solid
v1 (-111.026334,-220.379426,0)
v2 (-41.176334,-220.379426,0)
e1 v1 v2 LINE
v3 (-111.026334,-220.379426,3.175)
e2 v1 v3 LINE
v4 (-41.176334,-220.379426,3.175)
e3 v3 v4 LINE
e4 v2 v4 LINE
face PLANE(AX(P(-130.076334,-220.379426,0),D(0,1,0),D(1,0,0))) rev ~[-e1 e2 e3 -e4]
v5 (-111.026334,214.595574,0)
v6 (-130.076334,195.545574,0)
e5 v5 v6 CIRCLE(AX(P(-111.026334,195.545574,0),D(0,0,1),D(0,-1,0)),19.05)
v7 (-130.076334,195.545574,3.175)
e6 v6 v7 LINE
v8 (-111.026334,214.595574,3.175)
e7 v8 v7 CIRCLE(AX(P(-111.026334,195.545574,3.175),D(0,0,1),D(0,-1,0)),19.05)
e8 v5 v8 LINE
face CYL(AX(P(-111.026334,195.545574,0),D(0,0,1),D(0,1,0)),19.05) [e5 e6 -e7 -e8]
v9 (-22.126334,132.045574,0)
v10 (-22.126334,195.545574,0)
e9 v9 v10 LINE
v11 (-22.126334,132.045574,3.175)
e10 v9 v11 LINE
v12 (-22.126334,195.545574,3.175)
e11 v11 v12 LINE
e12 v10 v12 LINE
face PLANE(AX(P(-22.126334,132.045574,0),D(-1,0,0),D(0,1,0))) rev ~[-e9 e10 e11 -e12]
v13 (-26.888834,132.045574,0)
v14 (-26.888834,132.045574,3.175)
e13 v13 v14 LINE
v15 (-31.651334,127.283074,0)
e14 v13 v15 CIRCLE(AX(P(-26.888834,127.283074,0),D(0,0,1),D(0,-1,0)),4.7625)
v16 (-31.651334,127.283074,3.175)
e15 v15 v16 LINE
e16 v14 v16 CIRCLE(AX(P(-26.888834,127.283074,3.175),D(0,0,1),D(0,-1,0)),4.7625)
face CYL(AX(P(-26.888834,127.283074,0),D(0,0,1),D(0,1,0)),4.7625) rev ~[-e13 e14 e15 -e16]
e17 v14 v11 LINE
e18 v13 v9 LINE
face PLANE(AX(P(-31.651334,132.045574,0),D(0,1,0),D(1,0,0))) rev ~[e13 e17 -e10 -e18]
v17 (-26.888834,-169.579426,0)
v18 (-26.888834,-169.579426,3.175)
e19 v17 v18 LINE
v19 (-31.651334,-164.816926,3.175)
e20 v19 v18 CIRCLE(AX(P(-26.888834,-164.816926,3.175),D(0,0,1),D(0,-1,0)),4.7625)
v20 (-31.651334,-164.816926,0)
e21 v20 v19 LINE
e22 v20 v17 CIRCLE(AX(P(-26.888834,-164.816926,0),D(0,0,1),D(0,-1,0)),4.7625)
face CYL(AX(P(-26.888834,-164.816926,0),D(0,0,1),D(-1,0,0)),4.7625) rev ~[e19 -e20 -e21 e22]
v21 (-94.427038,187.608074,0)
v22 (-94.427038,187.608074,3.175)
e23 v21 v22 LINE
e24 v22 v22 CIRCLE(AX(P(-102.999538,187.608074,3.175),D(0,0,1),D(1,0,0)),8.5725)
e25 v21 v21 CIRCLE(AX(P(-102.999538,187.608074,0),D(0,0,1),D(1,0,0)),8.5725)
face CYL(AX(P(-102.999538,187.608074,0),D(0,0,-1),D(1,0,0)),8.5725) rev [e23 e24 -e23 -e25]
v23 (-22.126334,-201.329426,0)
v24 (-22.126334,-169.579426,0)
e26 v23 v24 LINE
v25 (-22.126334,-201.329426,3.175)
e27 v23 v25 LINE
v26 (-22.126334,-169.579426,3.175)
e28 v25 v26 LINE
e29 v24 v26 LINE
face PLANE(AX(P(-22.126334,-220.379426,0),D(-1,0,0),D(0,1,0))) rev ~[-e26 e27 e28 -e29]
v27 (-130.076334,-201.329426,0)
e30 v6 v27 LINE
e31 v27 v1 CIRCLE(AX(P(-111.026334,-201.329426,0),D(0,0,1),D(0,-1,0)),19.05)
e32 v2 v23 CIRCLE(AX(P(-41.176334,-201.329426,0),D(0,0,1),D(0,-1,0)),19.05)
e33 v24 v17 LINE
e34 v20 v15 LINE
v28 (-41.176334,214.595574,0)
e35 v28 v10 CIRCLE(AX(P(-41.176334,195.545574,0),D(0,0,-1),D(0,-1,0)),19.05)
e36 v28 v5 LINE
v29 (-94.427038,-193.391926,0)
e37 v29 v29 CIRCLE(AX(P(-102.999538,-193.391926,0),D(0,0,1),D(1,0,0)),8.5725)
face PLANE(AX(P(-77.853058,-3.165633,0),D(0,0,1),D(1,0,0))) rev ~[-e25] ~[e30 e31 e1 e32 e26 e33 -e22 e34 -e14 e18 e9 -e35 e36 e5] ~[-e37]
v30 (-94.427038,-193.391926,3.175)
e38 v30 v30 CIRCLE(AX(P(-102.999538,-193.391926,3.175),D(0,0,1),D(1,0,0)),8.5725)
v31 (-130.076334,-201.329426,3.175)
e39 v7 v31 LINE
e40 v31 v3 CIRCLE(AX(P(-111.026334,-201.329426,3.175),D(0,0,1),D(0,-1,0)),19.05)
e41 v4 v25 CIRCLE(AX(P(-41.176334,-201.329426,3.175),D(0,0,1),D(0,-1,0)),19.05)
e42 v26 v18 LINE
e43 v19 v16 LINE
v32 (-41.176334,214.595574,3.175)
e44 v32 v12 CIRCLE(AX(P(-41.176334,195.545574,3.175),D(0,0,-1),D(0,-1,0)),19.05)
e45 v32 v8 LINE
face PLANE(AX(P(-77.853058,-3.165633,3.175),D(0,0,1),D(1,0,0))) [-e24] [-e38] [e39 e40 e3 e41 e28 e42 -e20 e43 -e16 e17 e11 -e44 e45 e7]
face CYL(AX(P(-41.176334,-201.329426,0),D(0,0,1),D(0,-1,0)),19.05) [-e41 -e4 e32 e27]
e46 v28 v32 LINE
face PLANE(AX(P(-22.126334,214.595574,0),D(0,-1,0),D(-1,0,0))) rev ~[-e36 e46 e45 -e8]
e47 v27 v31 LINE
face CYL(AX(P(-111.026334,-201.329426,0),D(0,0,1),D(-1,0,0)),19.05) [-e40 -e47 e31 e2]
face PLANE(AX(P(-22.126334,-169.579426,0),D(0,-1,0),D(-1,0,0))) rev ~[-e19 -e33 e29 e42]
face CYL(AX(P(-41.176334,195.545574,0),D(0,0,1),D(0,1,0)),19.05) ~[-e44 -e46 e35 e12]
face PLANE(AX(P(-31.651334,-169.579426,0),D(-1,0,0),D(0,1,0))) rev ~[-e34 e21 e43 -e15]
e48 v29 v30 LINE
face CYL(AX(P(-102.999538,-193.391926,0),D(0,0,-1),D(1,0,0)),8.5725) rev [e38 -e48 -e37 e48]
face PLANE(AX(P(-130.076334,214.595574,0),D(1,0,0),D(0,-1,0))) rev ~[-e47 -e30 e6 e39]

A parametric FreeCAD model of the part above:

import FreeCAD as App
import Part
import Sketcher
from FreeCAD import Vector
Q = App.Units.Quantity


def edges_at(feature, points):
    """Names of the edges that pass closest to the given points."""
    edges = feature.Shape.Edges
    near = lambda p: min(range(len(edges)), key=lambda i: edges[i].distToShape(Part.Vertex(*p))[0])
    return sorted({f"Edge{near(p) + 1}" for p in points})


def add_polygon(sketch, points):
    """Adds a closed chain of lines whose ends are joined by coincident constraints."""
    first, n = sketch.GeometryCount, len(points)
    for a, b in zip(points, points[1:] + points[:1]):
        sketch.addGeometry(Part.LineSegment(App.Vector(*a, 0), App.Vector(*b, 0)), False)
    for i in range(n):
        sketch.addConstraint(Sketcher.Constraint("Coincident", first + i, 2, first + (i + 1) % n, 1))

doc = App.newDocument("Part")
body = doc.addObject("PartDesign::Body", "Body")

sketch1 = body.newObject("Sketcher::SketchObject", "Sketch")
sketch1.AttachmentSupport = (doc.getObject("XY_Plane"), [""])
sketch1.MapMode = "FlatFace"
add_polygon(sketch1, [(-22.126334, 214.595574), (-130.076334, 214.595574), (-130.076334, -220.379426), (-22.126334, -220.379426), (-22.126334, -169.579426), (-31.651334, -169.579426), (-31.651334, 132.045574), (-22.126334, 132.045574)])
sketch1.addGeometry(Part.Circle(Vector(-102.999538, -193.391926, 0), Vector(0, 0, 1), 8.5725), False)
sketch1.addGeometry(Part.Circle(Vector(-102.999538, 187.608074, 0), Vector(0, 0, 1), 8.5725), False)
sketch1.addConstraint(Sketcher.Constraint("Horizontal", 0))
sketch1.addConstraint(Sketcher.Constraint("Vertical", 1))
sketch1.addConstraint(Sketcher.Constraint("Horizontal", 2))
sketch1.addConstraint(Sketcher.Constraint("Vertical", 3))
sketch1.addConstraint(Sketcher.Constraint("Horizontal", 4))
sketch1.addConstraint(Sketcher.Constraint("Vertical", 5))
sketch1.addConstraint(Sketcher.Constraint("Horizontal", 6))
sketch1.addConstraint(Sketcher.Constraint("Vertical", 7))
sketch1.addConstraint(Sketcher.Constraint("Equal", 8, 9))
sketch1.addConstraint(Sketcher.Constraint("Vertical", 8, 3, 9, 3))
sketch1.addConstraint(Sketcher.Constraint("Vertical", 3, 2, 6, 2))
sketch1.addConstraint(Sketcher.Constraint("DistanceY", 3, 1, 3, 2, Q("2 in")))
sketch1.addConstraint(Sketcher.Constraint("Diameter", 8, Q("0.675 in")))
sketch1.addConstraint(Sketcher.Constraint("DistanceY", 8, 3, 9, 3, Q("15 in")))
sketch1.addConstraint(Sketcher.Constraint("DistanceX", 0, 2, 0, 1, Q("4.25 in")))
sketch1.addConstraint(Sketcher.Constraint("DistanceY", 7, 1, 7, 2, Q("3.25 in")))
sketch1.addConstraint(Sketcher.Constraint("DistanceX", 4, 2, 4, 1, Q("0.375 in")))
sketch1.addConstraint(Sketcher.Constraint("DistanceY", 1, 2, 1, 1, Q("17.125 in")))
sketch1.addConstraint(Sketcher.Constraint("DistanceY", 9, 3, 0, 2, Q("1.0625 in")))
sketch1.addConstraint(Sketcher.Constraint("DistanceX", 8, 3, -1, 1, Q("4.0550999 in")))
sketch1.addConstraint(Sketcher.Constraint("DistanceY", 8, 3, -1, 1, 193.391926))
sketch1.addConstraint(Sketcher.Constraint("DistanceX", 0, 2, -1, 1, 130.076334))
pad1 = body.newObject("PartDesign::Pad", "Pad")
pad1.Profile = sketch1
pad1.Length = Q("0.125 in")
doc.recompute()

fillet = body.newObject("PartDesign::Fillet", "Fillet")
fillet.Base = (pad1, edges_at(pad1, [
    (-130.076, -220.379, 1.587),
    (-22.126, -220.379, 1.587),
    (-130.076, 214.596, 1.587),
    (-22.126, 214.596, 1.587),
]))
fillet.Radius = Q("0.75 in")
doc.recompute()

fillet2 = body.newObject("PartDesign::Fillet", "Fillet001")
fillet2.Base = (fillet, edges_at(fillet, [(-31.651, -169.579, 1.587), (-31.651, 132.046, 1.587)]))
fillet2.Radius = Q("0.1875 in")

doc.recompute()
